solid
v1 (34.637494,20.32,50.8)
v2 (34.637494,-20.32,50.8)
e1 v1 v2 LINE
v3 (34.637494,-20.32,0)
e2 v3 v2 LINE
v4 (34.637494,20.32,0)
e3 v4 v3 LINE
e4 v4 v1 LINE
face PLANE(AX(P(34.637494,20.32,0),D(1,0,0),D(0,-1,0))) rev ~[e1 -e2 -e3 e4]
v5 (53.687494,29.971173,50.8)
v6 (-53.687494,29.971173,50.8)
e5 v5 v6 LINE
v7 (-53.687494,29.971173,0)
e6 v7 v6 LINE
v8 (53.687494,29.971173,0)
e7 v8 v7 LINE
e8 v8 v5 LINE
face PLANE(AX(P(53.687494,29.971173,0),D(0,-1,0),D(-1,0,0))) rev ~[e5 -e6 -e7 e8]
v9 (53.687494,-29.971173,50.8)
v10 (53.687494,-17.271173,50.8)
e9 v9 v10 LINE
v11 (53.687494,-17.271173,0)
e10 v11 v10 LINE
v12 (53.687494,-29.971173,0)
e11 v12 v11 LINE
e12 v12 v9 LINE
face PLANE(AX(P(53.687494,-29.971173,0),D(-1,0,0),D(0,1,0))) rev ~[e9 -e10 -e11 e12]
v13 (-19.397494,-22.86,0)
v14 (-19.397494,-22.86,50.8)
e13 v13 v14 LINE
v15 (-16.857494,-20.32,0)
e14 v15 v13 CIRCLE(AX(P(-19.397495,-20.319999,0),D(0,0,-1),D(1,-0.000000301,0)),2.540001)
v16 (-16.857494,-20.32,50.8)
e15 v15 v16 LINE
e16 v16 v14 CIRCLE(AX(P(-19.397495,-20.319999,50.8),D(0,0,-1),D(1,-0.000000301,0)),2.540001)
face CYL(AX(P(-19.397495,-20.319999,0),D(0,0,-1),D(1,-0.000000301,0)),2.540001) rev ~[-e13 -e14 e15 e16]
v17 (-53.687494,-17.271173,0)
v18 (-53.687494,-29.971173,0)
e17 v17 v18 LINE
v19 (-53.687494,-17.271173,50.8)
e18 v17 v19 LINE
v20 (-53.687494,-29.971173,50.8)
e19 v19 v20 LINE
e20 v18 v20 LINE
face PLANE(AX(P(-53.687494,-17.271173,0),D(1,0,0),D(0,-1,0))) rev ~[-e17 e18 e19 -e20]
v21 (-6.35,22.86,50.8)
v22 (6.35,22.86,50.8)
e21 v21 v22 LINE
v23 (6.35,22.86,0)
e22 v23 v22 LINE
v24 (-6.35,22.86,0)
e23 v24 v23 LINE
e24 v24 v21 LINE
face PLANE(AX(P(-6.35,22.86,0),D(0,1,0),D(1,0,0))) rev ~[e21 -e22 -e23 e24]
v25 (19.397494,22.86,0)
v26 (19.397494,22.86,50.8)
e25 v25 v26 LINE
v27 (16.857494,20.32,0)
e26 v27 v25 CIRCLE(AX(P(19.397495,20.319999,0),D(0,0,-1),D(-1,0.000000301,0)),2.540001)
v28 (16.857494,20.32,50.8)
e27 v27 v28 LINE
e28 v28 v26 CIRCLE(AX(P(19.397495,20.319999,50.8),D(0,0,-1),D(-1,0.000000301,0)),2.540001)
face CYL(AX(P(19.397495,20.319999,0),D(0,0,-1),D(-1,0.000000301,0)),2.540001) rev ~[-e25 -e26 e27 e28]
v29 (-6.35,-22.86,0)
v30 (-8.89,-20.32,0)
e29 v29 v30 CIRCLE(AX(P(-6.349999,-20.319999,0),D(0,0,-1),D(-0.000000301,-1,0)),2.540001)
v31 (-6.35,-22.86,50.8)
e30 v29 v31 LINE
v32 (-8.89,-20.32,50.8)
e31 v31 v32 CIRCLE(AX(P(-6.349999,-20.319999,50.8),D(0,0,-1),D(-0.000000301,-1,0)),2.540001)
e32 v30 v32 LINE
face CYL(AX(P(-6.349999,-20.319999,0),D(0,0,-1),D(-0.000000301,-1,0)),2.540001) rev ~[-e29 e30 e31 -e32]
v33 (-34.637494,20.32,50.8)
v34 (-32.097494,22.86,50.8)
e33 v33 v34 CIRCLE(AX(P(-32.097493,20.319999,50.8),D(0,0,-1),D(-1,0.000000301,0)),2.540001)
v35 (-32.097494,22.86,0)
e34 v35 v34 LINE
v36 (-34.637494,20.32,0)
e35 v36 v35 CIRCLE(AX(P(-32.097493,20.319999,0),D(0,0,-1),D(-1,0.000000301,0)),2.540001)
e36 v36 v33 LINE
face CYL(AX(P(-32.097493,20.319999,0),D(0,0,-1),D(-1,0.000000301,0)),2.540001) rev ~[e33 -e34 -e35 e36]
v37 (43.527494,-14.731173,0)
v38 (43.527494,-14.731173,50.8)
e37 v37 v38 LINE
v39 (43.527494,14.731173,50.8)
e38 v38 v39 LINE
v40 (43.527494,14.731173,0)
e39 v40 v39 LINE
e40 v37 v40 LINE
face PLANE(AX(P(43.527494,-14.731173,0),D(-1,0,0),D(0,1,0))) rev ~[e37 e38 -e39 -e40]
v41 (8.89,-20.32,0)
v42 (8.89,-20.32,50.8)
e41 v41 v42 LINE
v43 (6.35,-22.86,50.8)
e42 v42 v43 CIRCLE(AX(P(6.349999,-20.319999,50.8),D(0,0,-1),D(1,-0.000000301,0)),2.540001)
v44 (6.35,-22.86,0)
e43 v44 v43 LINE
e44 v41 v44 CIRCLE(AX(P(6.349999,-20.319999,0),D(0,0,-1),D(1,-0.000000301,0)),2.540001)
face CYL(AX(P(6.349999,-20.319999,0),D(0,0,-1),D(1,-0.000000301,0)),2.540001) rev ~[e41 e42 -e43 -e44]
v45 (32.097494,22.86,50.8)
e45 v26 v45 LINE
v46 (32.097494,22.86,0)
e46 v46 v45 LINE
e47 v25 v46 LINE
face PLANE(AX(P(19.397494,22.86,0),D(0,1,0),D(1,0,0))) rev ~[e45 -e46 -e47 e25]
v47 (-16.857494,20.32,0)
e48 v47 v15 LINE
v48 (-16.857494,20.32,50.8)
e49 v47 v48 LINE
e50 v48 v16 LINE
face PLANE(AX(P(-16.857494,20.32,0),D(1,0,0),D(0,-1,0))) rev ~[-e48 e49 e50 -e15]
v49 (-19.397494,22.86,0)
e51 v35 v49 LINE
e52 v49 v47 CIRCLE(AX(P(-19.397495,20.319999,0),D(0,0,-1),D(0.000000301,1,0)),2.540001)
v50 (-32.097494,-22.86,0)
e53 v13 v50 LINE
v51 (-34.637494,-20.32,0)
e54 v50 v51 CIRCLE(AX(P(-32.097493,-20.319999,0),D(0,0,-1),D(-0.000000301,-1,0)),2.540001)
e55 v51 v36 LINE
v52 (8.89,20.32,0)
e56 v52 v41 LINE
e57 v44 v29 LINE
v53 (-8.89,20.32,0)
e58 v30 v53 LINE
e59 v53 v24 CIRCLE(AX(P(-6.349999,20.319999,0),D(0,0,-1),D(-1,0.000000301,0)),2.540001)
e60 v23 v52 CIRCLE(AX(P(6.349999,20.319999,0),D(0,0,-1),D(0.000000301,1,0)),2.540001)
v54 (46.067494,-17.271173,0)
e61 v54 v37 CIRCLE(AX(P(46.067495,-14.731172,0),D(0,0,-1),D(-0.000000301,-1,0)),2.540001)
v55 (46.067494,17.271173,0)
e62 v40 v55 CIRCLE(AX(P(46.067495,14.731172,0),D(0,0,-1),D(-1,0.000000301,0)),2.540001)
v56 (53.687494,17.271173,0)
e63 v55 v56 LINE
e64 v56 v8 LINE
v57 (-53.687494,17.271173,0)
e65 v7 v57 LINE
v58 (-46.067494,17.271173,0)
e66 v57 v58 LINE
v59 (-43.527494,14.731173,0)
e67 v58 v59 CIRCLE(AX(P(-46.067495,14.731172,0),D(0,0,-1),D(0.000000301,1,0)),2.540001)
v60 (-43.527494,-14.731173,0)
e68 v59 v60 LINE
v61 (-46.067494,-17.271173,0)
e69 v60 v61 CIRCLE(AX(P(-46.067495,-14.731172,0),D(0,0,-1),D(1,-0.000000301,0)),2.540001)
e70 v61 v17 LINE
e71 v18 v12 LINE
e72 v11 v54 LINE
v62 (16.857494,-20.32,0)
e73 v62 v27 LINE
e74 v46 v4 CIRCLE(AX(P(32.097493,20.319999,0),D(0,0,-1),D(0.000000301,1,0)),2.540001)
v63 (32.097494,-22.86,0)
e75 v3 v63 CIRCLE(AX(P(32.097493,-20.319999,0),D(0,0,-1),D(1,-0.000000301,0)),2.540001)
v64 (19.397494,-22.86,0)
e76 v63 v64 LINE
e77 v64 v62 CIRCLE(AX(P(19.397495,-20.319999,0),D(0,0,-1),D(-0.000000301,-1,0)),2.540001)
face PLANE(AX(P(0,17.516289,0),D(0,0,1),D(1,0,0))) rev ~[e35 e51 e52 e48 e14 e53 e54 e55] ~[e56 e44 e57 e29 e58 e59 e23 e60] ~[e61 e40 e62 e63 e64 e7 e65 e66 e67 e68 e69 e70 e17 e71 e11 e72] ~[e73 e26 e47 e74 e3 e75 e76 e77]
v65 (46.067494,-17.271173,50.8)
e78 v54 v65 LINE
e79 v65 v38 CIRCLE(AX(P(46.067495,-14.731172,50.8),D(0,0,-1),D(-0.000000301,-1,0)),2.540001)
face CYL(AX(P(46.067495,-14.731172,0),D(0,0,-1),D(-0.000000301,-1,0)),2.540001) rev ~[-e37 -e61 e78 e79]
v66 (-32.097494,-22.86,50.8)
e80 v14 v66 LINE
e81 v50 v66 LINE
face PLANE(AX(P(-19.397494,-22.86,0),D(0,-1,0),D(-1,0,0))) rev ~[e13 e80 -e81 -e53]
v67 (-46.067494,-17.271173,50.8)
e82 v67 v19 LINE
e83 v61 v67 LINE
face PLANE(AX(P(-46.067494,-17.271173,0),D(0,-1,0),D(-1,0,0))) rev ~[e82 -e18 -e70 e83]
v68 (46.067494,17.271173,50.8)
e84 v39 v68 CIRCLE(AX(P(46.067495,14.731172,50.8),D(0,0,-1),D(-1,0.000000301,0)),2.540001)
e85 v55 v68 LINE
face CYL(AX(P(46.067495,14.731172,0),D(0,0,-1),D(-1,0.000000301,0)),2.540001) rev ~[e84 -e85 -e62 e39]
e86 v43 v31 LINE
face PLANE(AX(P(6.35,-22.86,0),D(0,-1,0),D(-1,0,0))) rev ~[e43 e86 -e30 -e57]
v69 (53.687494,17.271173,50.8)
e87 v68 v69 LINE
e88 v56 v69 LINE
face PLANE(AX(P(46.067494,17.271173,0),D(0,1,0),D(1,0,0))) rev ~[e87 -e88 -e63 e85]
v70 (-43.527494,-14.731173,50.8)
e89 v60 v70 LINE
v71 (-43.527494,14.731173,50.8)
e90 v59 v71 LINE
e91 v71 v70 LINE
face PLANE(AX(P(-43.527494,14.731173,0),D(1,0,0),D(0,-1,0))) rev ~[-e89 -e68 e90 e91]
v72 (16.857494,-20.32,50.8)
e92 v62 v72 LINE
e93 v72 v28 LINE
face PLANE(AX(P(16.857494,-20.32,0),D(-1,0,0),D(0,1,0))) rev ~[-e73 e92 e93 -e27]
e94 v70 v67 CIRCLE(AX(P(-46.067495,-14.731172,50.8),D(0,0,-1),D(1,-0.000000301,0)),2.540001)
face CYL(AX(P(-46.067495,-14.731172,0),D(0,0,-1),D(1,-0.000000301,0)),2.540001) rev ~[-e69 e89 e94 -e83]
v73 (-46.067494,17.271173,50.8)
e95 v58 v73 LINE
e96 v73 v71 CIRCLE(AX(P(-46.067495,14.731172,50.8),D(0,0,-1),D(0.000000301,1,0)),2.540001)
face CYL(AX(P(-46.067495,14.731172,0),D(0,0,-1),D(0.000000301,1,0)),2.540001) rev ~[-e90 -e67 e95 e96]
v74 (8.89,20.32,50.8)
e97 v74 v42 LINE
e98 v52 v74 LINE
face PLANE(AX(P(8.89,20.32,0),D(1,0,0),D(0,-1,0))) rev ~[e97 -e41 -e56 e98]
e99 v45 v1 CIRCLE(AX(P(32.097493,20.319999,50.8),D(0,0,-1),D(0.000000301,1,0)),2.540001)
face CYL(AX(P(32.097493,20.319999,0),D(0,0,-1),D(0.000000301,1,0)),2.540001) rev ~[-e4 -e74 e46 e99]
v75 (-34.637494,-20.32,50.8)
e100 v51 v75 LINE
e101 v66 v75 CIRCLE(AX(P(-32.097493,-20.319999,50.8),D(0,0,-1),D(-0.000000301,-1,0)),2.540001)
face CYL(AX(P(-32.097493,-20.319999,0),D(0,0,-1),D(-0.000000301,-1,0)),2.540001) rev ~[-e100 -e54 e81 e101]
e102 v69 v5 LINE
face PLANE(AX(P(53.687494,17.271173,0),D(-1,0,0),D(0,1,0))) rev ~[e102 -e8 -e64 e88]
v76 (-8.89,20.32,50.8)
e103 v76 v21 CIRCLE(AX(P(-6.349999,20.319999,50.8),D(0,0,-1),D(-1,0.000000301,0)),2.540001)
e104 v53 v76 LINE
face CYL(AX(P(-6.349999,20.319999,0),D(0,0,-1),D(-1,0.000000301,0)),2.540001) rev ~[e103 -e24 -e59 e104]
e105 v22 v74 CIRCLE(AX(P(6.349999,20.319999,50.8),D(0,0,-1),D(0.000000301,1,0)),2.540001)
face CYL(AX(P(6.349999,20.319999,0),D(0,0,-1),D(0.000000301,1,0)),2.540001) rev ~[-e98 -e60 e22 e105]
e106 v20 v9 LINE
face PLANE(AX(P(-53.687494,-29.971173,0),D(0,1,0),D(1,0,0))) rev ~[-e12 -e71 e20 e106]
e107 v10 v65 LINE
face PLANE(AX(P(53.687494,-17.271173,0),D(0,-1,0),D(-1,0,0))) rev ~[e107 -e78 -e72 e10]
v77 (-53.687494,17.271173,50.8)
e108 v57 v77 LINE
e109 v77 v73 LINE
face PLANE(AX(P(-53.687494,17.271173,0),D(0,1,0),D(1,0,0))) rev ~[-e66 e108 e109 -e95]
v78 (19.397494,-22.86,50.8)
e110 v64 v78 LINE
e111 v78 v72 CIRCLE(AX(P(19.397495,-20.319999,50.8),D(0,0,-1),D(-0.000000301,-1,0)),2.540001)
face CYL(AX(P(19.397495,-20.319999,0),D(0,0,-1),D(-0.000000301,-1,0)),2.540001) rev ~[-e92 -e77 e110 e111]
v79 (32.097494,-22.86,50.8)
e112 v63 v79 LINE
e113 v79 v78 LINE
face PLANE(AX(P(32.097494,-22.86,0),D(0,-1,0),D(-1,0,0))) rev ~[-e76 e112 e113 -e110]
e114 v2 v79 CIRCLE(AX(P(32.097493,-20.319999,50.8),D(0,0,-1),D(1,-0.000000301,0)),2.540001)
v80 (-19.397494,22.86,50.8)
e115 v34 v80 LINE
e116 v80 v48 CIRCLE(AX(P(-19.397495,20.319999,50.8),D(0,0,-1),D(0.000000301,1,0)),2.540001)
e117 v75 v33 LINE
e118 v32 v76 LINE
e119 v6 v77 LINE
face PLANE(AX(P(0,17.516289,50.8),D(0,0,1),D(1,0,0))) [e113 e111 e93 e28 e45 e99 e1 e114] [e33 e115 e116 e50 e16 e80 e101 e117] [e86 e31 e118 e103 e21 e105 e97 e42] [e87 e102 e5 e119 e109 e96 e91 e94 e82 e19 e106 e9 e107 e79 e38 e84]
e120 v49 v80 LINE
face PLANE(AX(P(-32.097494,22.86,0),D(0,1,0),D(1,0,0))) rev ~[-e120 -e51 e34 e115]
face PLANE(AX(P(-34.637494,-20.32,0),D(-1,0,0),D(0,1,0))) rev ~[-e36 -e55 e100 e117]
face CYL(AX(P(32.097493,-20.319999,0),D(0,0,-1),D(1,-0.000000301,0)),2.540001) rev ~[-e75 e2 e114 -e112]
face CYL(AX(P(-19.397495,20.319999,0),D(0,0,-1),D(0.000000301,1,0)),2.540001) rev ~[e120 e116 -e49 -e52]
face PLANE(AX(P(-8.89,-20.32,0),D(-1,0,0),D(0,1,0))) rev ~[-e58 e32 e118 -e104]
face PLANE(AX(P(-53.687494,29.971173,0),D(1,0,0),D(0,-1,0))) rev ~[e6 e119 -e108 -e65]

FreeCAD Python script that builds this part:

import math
import FreeCAD as App
import Part
import Sketcher
from FreeCAD import Vector
Q = App.Units.Quantity

doc = App.newDocument("Part")
body = doc.addObject("PartDesign::Body", "Body")

# Sketch on XY plane
sketch1 = doc.addObject("Sketcher::SketchObject", "Sketch")
body.addObject(sketch1)
sketch1.AttachmentSupport = (doc.XY_Plane, [""])
sketch1.MapMode = "FlatFace"
sketch1.addGeometry([
    Part.LineSegment(Vector(53.7, 30, 0), Vector(-53.7, 30, 0)),  # 0
    Part.LineSegment(Vector(-53.7, 30, 0), Vector(-53.7, 17.3, 0)),  # 1
    Part.LineSegment(Vector(-53.7, 17.3, 0), Vector(-46.1, 17.3, 0)),  # 2
    Part.ArcOfCircle(Part.Circle(Vector(-46.1, 14.7, 0), Vector(0, 0, 1), 2.5), math.radians(0), math.radians(90)),  # 3
    Part.LineSegment(Vector(-43.5, 14.7, 0), Vector(-43.5, -14.7, 0)),  # 4
    Part.ArcOfCircle(Part.Circle(Vector(-46.1, -14.7, 0), Vector(0, 0, 1), 2.5), math.radians(-90), math.radians(0)),  # 5
    Part.LineSegment(Vector(-46.1, -17.3, 0), Vector(-53.7, -17.3, 0)),  # 6
    Part.LineSegment(Vector(-53.7, -17.3, 0), Vector(-53.7, -30, 0)),  # 7
    Part.LineSegment(Vector(-53.7, -30, 0), Vector(53.7, -30, 0)),  # 8
    Part.LineSegment(Vector(53.7, -30, 0), Vector(53.7, -17.3, 0)),  # 9
    Part.LineSegment(Vector(53.7, -17.3, 0), Vector(46.1, -17.3, 0)),  # 10
    Part.ArcOfCircle(Part.Circle(Vector(46.1, -14.7, 0), Vector(0, 0, 1), 2.5), math.radians(-180), math.radians(-90)),  # 11
    Part.LineSegment(Vector(43.5, -14.7, 0), Vector(43.5, 14.7, 0)),  # 12
    Part.ArcOfCircle(Part.Circle(Vector(46.1, 14.7, 0), Vector(0, 0, 1), 2.5), math.radians(90), math.radians(180)),  # 13
    Part.LineSegment(Vector(46.1, 17.3, 0), Vector(53.7, 17.3, 0)),  # 14
    Part.LineSegment(Vector(53.7, 17.3, 0), Vector(53.7, 30, 0)),  # 15
    Part.ArcOfCircle(Part.Circle(Vector(-32.1, 20.3, 0), Vector(0, 0, 1), 2.5), math.radians(90), math.radians(180)),  # 16
    Part.LineSegment(Vector(-32.1, 22.9, 0), Vector(-19.4, 22.9, 0)),  # 17
    Part.ArcOfCircle(Part.Circle(Vector(-19.4, 20.3, 0), Vector(0, 0, 1), 2.5), math.radians(0), math.radians(90)),  # 18
    Part.LineSegment(Vector(-16.9, 20.3, 0), Vector(-16.9, -20.3, 0)),  # 19
    Part.ArcOfCircle(Part.Circle(Vector(-19.4, -20.3, 0), Vector(0, 0, 1), 2.5), math.radians(-90), math.radians(0)),  # 20
    Part.LineSegment(Vector(-19.4, -22.9, 0), Vector(-32.1, -22.9, 0)),  # 21
    Part.ArcOfCircle(Part.Circle(Vector(-32.1, -20.3, 0), Vector(0, 0, 1), 2.5), math.radians(-180), math.radians(-90)),  # 22
    Part.LineSegment(Vector(-34.6, -20.3, 0), Vector(-34.6, 20.3, 0)),  # 23
    Part.ArcOfCircle(Part.Circle(Vector(-6.3, 20.3, 0), Vector(0, 0, 1), 2.5), math.radians(90), math.radians(180)),  # 24
    Part.LineSegment(Vector(-6.3, 22.9, 0), Vector(6.3, 22.9, 0)),  # 25
    Part.ArcOfCircle(Part.Circle(Vector(6.3, 20.3, 0), Vector(0, 0, 1), 2.5), math.radians(0), math.radians(90)),  # 26
    Part.LineSegment(Vector(8.9, 20.3, 0), Vector(8.9, -20.3, 0)),  # 27
    Part.ArcOfCircle(Part.Circle(Vector(6.3, -20.3, 0), Vector(0, 0, 1), 2.5), math.radians(-90), math.radians(0)),  # 28
    Part.LineSegment(Vector(6.3, -22.9, 0), Vector(-6.3, -22.9, 0)),  # 29
    Part.ArcOfCircle(Part.Circle(Vector(-6.3, -20.3, 0), Vector(0, 0, 1), 2.5), math.radians(-180), math.radians(-90)),  # 30
    Part.LineSegment(Vector(-8.9, -20.3, 0), Vector(-8.9, 20.3, 0)),  # 31
    Part.ArcOfCircle(Part.Circle(Vector(19.4, 20.3, 0), Vector(0, 0, 1), 2.5), math.radians(90), math.radians(180)),  # 32
    Part.LineSegment(Vector(19.4, 22.9, 0), Vector(32.1, 22.9, 0)),  # 33
    Part.ArcOfCircle(Part.Circle(Vector(32.1, 20.3, 0), Vector(0, 0, 1), 2.5), math.radians(0), math.radians(90)),  # 34
    Part.LineSegment(Vector(34.6, 20.3, 0), Vector(34.6, -20.3, 0)),  # 35
    Part.ArcOfCircle(Part.Circle(Vector(32.1, -20.3, 0), Vector(0, 0, 1), 2.5), math.radians(-90), math.radians(0)),  # 36
    Part.LineSegment(Vector(32.1, -22.9, 0), Vector(19.4, -22.9, 0)),  # 37
    Part.ArcOfCircle(Part.Circle(Vector(19.4, -20.3, 0), Vector(0, 0, 1), 2.5), math.radians(-180), math.radians(-90)),  # 38
    Part.LineSegment(Vector(16.9, -20.3, 0), Vector(16.9, 20.3, 0)),  # 39
], False)
sketch1.addConstraint([
    Sketcher.Constraint("Coincident", 0, 2, 1, 1),
    Sketcher.Constraint("Coincident", 1, 2, 2, 1),
    Sketcher.Constraint("Tangent", 2, 2, 3, 2),
    Sketcher.Constraint("Tangent", 3, 1, 4, 1),
    Sketcher.Constraint("Tangent", 4, 2, 5, 2),
    Sketcher.Constraint("Tangent", 5, 1, 6, 1),
    Sketcher.Constraint("Coincident", 6, 2, 7, 1),
    Sketcher.Constraint("Coincident", 7, 2, 8, 1),
    Sketcher.Constraint("Coincident", 8, 2, 9, 1),
    Sketcher.Constraint("Coincident", 9, 2, 10, 1),
    Sketcher.Constraint("Tangent", 10, 2, 11, 2),
    Sketcher.Constraint("Tangent", 11, 1, 12, 1),
    Sketcher.Constraint("Tangent", 12, 2, 13, 2),
    Sketcher.Constraint("Tangent", 13, 1, 14, 1),
    Sketcher.Constraint("Coincident", 14, 2, 15, 1),
    Sketcher.Constraint("Coincident", 15, 2, 0, 1),
    Sketcher.Constraint("Tangent", 16, 1, 17, 1),
    Sketcher.Constraint("Tangent", 17, 2, 18, 2),
    Sketcher.Constraint("Tangent", 18, 1, 19, 1),
    Sketcher.Constraint("Tangent", 19, 2, 20, 2),
    Sketcher.Constraint("Tangent", 20, 1, 21, 1),
    Sketcher.Constraint("Tangent", 21, 2, 22, 2),
    Sketcher.Constraint("Tangent", 22, 1, 23, 1),
    Sketcher.Constraint("Tangent", 23, 2, 16, 2),
    Sketcher.Constraint("Tangent", 24, 1, 25, 1),
    Sketcher.Constraint("Tangent", 25, 2, 26, 2),
    Sketcher.Constraint("Tangent", 26, 1, 27, 1),
    Sketcher.Constraint("Tangent", 27, 2, 28, 2),
    Sketcher.Constraint("Tangent", 28, 1, 29, 1),
    Sketcher.Constraint("Tangent", 29, 2, 30, 2),
    Sketcher.Constraint("Tangent", 30, 1, 31, 1),
    Sketcher.Constraint("Tangent", 31, 2, 24, 2),
    Sketcher.Constraint("Tangent", 32, 1, 33, 1),
    Sketcher.Constraint("Tangent", 33, 2, 34, 2),
    Sketcher.Constraint("Tangent", 34, 1, 35, 1),
    Sketcher.Constraint("Tangent", 35, 2, 36, 2),
    Sketcher.Constraint("Tangent", 36, 1, 37, 1),
    Sketcher.Constraint("Tangent", 37, 2, 38, 2),
    Sketcher.Constraint("Tangent", 38, 1, 39, 1),
    Sketcher.Constraint("Tangent", 39, 2, 32, 2),
    Sketcher.Constraint("Horizontal", 0),
    Sketcher.Constraint("Vertical", 1),
    Sketcher.Constraint("Horizontal", 2),
    Sketcher.Constraint("Vertical", 4),
    Sketcher.Constraint("Horizontal", 6),
    Sketcher.Constraint("Vertical", 7),
    Sketcher.Constraint("Horizontal", 8),
    Sketcher.Constraint("Vertical", 9),
    Sketcher.Constraint("Horizontal", 10),
    Sketcher.Constraint("Vertical", 12),
    Sketcher.Constraint("Horizontal", 14),
    Sketcher.Constraint("Vertical", 15),
    Sketcher.Constraint("Horizontal", 17),
    Sketcher.Constraint("Vertical", 19),
    Sketcher.Constraint("Horizontal", 21),
    Sketcher.Constraint("Vertical", 23),
    Sketcher.Constraint("Horizontal", 25),
    Sketcher.Constraint("Vertical", 27),
    Sketcher.Constraint("Horizontal", 29),
    Sketcher.Constraint("Vertical", 31),
    Sketcher.Constraint("Horizontal", 33),
    Sketcher.Constraint("Vertical", 35),
    Sketcher.Constraint("Horizontal", 37),
    Sketcher.Constraint("Vertical", 39),
    Sketcher.Constraint("Equal", 3, 5),
    Sketcher.Constraint("Equal", 5, 11),
    Sketcher.Constraint("Equal", 11, 13),
    Sketcher.Constraint("Equal", 13, 16),
    Sketcher.Constraint("Equal", 16, 18),
    Sketcher.Constraint("Equal", 18, 20),
    Sketcher.Constraint("Equal", 20, 22),
    Sketcher.Constraint("Equal", 22, 24),
    Sketcher.Constraint("Equal", 24, 26),
    Sketcher.Constraint("Equal", 26, 28),
    Sketcher.Constraint("Equal", 28, 30),
    Sketcher.Constraint("Equal", 30, 32),
    Sketcher.Constraint("Equal", 32, 34),
    Sketcher.Constraint("Equal", 34, 36),
    Sketcher.Constraint("Equal", 36, 38),
    Sketcher.Constraint("Symmetric", 3, 3, 11, 3, -1, 1),
    Sketcher.Constraint("Symmetric", 24, 3, 28, 3, -1, 1),
    Sketcher.Constraint("Symmetric", 20, 3, 32, 3, -1, 1),
    Sketcher.Constraint("Symmetric", 16, 3, 36, 3, -1, 1),
    Sketcher.Constraint("Symmetric", 0, 2, 8, 2, -1, 1),
    Sketcher.Constraint("Symmetric", 6, 2, 14, 2, -1, 1),
    Sketcher.Constraint("Symmetric", 6, 2, 9, 2, -2),
    Sketcher.Constraint("Horizontal", 18, 3, 24, 3),
    Sketcher.Constraint("Horizontal", 22, 3, 28, 3),
    Sketcher.Constraint("Equal", 21, 25),
    Sketcher.Constraint("Equal", 37, 1),
    Sketcher.Constraint("Radius", 3, Q("0.1 in")),
    Sketcher.Constraint("DistanceX", 2, 1, 2, 2, Q("0.3 in")),
    Sketcher.Constraint("DistanceX", 17, 1, 17, 2, Q("0.5 in")),
    Sketcher.Constraint("DistanceY", 19, 2, 19, 1, Q("1.6 in")),
    Sketcher.Constraint("DistanceX", 3, 3, 16, 3, Q("0.5500001 in")),
    Sketcher.Constraint("DistanceX", 0, 2, 0, 1, 107.374988),
    Sketcher.Constraint("DistanceY", 4, 2, 4, 1, 29.462346),
])
pad1 = doc.addObject("PartDesign::Pad", "Pad")
body.addObject(pad1)
pad1.Profile = sketch1
pad1.Length = Q("2 in")

doc.recompute()
